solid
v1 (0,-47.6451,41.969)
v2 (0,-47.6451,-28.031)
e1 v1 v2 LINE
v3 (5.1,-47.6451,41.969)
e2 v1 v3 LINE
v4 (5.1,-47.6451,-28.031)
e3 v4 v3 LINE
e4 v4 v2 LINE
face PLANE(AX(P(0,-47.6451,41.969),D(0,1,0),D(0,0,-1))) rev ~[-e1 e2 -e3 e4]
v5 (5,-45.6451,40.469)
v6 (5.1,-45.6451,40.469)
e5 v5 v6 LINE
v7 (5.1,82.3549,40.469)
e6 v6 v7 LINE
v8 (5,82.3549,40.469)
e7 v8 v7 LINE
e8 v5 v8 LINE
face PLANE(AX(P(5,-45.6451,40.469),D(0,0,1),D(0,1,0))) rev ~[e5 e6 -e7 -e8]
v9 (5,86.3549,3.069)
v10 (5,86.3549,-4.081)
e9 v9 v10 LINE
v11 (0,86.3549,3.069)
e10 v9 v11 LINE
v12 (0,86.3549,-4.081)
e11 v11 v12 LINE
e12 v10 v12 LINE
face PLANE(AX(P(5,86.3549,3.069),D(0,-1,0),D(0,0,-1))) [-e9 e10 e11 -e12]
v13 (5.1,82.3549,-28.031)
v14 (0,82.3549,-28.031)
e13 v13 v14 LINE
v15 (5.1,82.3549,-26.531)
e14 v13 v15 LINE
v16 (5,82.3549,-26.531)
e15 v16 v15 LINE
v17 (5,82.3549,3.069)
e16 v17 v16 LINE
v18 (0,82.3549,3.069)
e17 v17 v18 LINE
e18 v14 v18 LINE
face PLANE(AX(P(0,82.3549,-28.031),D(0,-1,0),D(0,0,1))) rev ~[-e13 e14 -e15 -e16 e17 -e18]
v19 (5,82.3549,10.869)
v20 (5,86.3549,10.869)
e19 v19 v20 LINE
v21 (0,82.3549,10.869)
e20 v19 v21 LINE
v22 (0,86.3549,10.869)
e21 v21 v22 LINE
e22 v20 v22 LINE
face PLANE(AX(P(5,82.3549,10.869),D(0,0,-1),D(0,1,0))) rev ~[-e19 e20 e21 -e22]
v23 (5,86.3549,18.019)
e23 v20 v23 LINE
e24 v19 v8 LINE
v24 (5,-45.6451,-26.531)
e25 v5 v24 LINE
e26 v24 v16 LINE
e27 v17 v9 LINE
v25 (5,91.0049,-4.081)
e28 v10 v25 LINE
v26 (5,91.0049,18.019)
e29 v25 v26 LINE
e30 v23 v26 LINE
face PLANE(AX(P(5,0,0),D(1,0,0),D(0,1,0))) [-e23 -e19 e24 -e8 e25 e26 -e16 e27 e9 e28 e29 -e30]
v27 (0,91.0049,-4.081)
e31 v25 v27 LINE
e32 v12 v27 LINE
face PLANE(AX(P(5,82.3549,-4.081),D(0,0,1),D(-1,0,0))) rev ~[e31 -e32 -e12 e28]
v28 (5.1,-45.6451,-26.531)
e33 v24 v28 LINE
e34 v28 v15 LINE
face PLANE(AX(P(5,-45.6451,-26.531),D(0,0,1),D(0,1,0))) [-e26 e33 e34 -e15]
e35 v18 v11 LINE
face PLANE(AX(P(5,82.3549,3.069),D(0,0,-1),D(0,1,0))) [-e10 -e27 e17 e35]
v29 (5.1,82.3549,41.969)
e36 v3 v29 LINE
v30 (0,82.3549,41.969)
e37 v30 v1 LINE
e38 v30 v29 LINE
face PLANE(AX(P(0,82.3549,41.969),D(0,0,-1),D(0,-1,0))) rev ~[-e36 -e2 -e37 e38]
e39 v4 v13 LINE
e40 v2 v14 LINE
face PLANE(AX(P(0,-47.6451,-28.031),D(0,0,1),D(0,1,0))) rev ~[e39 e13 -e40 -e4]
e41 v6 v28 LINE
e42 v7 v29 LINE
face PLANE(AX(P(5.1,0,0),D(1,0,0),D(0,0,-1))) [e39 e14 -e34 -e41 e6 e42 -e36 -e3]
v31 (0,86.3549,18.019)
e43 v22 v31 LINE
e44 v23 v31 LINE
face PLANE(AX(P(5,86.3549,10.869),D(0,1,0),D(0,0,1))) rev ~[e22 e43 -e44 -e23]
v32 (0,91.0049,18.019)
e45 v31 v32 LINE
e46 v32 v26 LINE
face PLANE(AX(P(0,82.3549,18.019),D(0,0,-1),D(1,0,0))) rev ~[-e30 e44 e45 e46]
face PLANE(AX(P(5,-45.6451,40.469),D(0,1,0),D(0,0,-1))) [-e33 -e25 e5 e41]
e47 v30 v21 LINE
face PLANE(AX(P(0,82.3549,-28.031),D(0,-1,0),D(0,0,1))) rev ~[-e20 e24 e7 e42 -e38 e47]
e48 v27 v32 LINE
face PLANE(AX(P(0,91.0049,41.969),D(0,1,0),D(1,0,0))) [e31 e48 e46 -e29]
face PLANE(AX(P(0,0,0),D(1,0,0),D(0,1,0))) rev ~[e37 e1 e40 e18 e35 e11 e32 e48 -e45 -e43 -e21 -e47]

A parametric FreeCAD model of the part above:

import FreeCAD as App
import Part
import Sketcher

V = App.Vector
Q = App.Units.Quantity

doc = App.newDocument("Part")
body = doc.addObject("PartDesign::Body", "Body")

# Sketch on YZ plane
sketch1 = doc.addObject("Sketcher::SketchObject", "Sketch")
body.addObject(sketch1)
sketch1.AttachmentSupport = (doc.YZ_Plane, [""])
sketch1.MapMode = "FlatFace"
sketch1.addGeometry([
    Part.LineSegment(V(82, -28, 0), V(82, 42, 0)),
    Part.LineSegment(V(82, 42, 0), V(-48, 42, 0)),
    Part.LineSegment(V(-48, 42, 0), V(-48, -28, 0)),
    Part.LineSegment(V(-48, -28, 0), V(82, -28, 0)),
], False)
sketch1.addConstraint([
    Sketcher.Constraint("Coincident", 0, 2, 1, 1),
    Sketcher.Constraint("Coincident", 1, 2, 2, 1),
    Sketcher.Constraint("Coincident", 2, 2, 3, 1),
    Sketcher.Constraint("Coincident", 3, 2, 0, 1),
    Sketcher.Constraint("Vertical", 0),
    Sketcher.Constraint("Horizontal", 1),
    Sketcher.Constraint("Vertical", 2),
    Sketcher.Constraint("Horizontal", 3),
    Sketcher.Constraint("DistanceX", 1, 2, 1, 1, Q("130 mm")),
    Sketcher.Constraint("DistanceY", 0, 1, 0, 2, Q("70 mm")),
    Sketcher.Constraint("DistanceX", -1, 1, 0, 2, Q("82.355 mm")),
    Sketcher.Constraint("DistanceY", -1, 1, 0, 2, Q("41.969 mm")),
])
pad1 = doc.addObject("PartDesign::Pad", "Pad")
body.addObject(pad1)
pad1.Profile = sketch1
pad1.Length = 5

# Sketch on YZ plane
sketch2 = doc.addObject("Sketcher::SketchObject", "Sketch001")
body.addObject(sketch2)
sketch2.AttachmentSupport = (doc.YZ_Plane, [""])
sketch2.MapMode = "FlatFace"
sketch2.AttachmentOffset = App.Placement(V(0, 0, 5), App.Rotation())
sketch2.addGeometry([
    Part.LineSegment(V(-47.6, 42, 0), V(-47.6, -28, 0)),  # 0
    Part.LineSegment(V(-47.6, -28, 0), V(82.4, -28, 0)),  # 1
    Part.LineSegment(V(82.4, -28, 0), V(82.4, -26.5, 0)),  # 2
    Part.LineSegment(V(82.4, -26.5, 0), V(-45.6, -26.5, 0)),  # 3
    Part.LineSegment(V(-45.6, -26.5, 0), V(-45.6, 40.5, 0)),  # 4
    Part.LineSegment(V(-45.6, 40.5, 0), V(82.4, 40.5, 0)),  # 5
    Part.LineSegment(V(82.4, 40.5, 0), V(82.4, 42, 0)),  # 6
    Part.LineSegment(V(82.4, 42, 0), V(-47.6, 42, 0)),  # 7
], False)
sketch2.addConstraint([
    Sketcher.Constraint("Coincident", 0, 2, 1, 1),
    Sketcher.Constraint("Coincident", 1, 2, 2, 1),
    Sketcher.Constraint("Coincident", 2, 2, 3, 1),
    Sketcher.Constraint("Coincident", 3, 2, 4, 1),
    Sketcher.Constraint("Coincident", 4, 2, 5, 1),
    Sketcher.Constraint("Coincident", 5, 2, 6, 1),
    Sketcher.Constraint("Coincident", 6, 2, 7, 1),
    Sketcher.Constraint("Coincident", 7, 2, 0, 1),
    Sketcher.Constraint("Vertical", 0),
    Sketcher.Constraint("Horizontal", 1),
    Sketcher.Constraint("Vertical", 2),
    Sketcher.Constraint("Horizontal", 3),
    Sketcher.Constraint("Vertical", 4),
    Sketcher.Constraint("Horizontal", 5),
    Sketcher.Constraint("Vertical", 6),
    Sketcher.Constraint("Horizontal", 7),
    Sketcher.Constraint("Vertical", 2, 2, 5, 2),
    Sketcher.Constraint("Equal", 2, 6),
    Sketcher.Constraint("DistanceY", 2, 1, 2, 2, Q("1.5 mm")),
    Sketcher.Constraint("DistanceX", 0, 2, 3, 2, Q("2 mm")),
    Sketcher.Constraint("DistanceX", 1, 1, 1, 2, Q("130 mm")),
    Sketcher.Constraint("DistanceY", 0, 2, 0, 1, Q("70 mm")),
    Sketcher.Constraint("DistanceX", 0, 2, -1, 1, Q("47.645 mm")),
    Sketcher.Constraint("DistanceY", 0, 2, -1, 1, Q("28.031 mm")),
])
pad2 = doc.addObject("PartDesign::Pad", "Pad001")
body.addObject(pad2)
pad2.Profile = sketch2
pad2.Length = 0.1

# Sketch on XZ plane
sketch3 = doc.addObject("Sketcher::SketchObject", "Sketch002")
body.addObject(sketch3)
sketch3.AttachmentSupport = (doc.XZ_Plane, [""])
sketch3.MapMode = "FlatFace"
sketch3.AttachmentOffset = App.Placement(V(0, 0, -82.3549), App.Rotation())
sketch3.addGeometry([
    Part.LineSegment(V(0, 18, 0), V(5, 18, 0)),
    Part.LineSegment(V(5, 18, 0), V(5, -4, 0)),
    Part.LineSegment(V(5, -4, 0), V(0, -4, 0)),
    Part.LineSegment(V(0, -4, 0), V(0, 18, 0)),
], False)
sketch3.addConstraint([
    Sketcher.Constraint("Coincident", 0, 2, 1, 1),
    Sketcher.Constraint("Coincident", 1, 2, 2, 1),
    Sketcher.Constraint("Coincident", 2, 2, 3, 1),
    Sketcher.Constraint("Coincident", 3, 2, 0, 1),
    Sketcher.Constraint("Horizontal", 0),
    Sketcher.Constraint("Vertical", 1),
    Sketcher.Constraint("Horizontal", 2),
    Sketcher.Constraint("Vertical", 3),
    Sketcher.Constraint("PointOnObject", 2, 2, -2),
    Sketcher.Constraint("DistanceX", 0, 1, 0, 2, Q("5 mm")),
    Sketcher.Constraint("DistanceY", 1, 2, 1, 1, Q("22.1 mm")),
    Sketcher.Constraint("DistanceY", -1, 1, 0, 2, Q("18.019 mm")),
])
pad3 = doc.addObject("PartDesign::Pad", "Pad002")
body.addObject(pad3)
pad3.Profile = sketch3
pad3.Length = 8.65
pad3.Reversed = True

# Sketch on YZ plane
sketch4 = doc.addObject("Sketcher::SketchObject", "Sketch003")
body.addObject(sketch4)
sketch4.AttachmentSupport = (doc.YZ_Plane, [""])
sketch4.MapMode = "FlatFace"
sketch4.AttachmentOffset = App.Placement(V(0, 0, 5), App.Rotation())
sketch4.addGeometry([
    Part.LineSegment(V(82.4, 3.1, 0), V(82.4, -4.1, 0)),  # 0
    Part.LineSegment(V(82.4, -4.1, 0), V(86.4, -4.1, 0)),  # 1
    Part.LineSegment(V(86.4, -4.1, 0), V(86.4, 3.1, 0)),  # 2
    Part.LineSegment(V(86.4, 3.1, 0), V(82.4, 3.1, 0)),  # 3
    Part.LineSegment(V(86.4, 18, 0), V(82.4, 18, 0)),  # 4
    Part.LineSegment(V(82.4, 18, 0), V(82.4, 10.9, 0)),  # 5
    Part.LineSegment(V(82.4, 10.9, 0), V(86.4, 10.9, 0)),  # 6
    Part.LineSegment(V(86.4, 10.9, 0), V(86.4, 18, 0)),  # 7
], False)
sketch4.addConstraint([
    Sketcher.Constraint("Coincident", 0, 2, 1, 1),
    Sketcher.Constraint("Coincident", 1, 2, 2, 1),
    Sketcher.Constraint("Coincident", 2, 2, 3, 1),
    Sketcher.Constraint("Coincident", 3, 2, 0, 1),
    Sketcher.Constraint("Coincident", 4, 2, 5, 1),
    Sketcher.Constraint("Coincident", 5, 2, 6, 1),
    Sketcher.Constraint("Coincident", 6, 2, 7, 1),
    Sketcher.Constraint("Coincident", 7, 2, 4, 1),
    Sketcher.Constraint("Vertical", 0),
    Sketcher.Constraint("Horizontal", 1),
    Sketcher.Constraint("Vertical", 2),
    Sketcher.Constraint("Horizontal", 3),
    Sketcher.Constraint("Horizontal", 4),
    Sketcher.Constraint("Vertical", 5),
    Sketcher.Constraint("Horizontal", 6),
    Sketcher.Constraint("Vertical", 7),
    Sketcher.Constraint("Vertical", 3, 2, 4, 2),
    Sketcher.Constraint("Vertical", 2, 2, 6, 2),
    Sketcher.Constraint("Equal", 2, 5),
    Sketcher.Constraint("DistanceX", 1, 1, 1, 2, Q("4 mm")),
    Sketcher.Constraint("DistanceY", 0, 2, 0, 1, Q("7.15 mm")),
    Sketcher.Constraint("DistanceY", 0, 2, 4, 2, Q("22.1 mm")),
    Sketcher.Constraint("DistanceX", -1, 1, 0, 2, Q("82.355 mm")),
    Sketcher.Constraint("DistanceY", 0, 2, -1, 1, Q("4.081 mm")),
])
pocket1 = doc.addObject("PartDesign::Pocket", "Pocket")
body.addObject(pocket1)
pocket1.Profile = sketch4
pocket1.Length = 8.65

doc.recompute()
